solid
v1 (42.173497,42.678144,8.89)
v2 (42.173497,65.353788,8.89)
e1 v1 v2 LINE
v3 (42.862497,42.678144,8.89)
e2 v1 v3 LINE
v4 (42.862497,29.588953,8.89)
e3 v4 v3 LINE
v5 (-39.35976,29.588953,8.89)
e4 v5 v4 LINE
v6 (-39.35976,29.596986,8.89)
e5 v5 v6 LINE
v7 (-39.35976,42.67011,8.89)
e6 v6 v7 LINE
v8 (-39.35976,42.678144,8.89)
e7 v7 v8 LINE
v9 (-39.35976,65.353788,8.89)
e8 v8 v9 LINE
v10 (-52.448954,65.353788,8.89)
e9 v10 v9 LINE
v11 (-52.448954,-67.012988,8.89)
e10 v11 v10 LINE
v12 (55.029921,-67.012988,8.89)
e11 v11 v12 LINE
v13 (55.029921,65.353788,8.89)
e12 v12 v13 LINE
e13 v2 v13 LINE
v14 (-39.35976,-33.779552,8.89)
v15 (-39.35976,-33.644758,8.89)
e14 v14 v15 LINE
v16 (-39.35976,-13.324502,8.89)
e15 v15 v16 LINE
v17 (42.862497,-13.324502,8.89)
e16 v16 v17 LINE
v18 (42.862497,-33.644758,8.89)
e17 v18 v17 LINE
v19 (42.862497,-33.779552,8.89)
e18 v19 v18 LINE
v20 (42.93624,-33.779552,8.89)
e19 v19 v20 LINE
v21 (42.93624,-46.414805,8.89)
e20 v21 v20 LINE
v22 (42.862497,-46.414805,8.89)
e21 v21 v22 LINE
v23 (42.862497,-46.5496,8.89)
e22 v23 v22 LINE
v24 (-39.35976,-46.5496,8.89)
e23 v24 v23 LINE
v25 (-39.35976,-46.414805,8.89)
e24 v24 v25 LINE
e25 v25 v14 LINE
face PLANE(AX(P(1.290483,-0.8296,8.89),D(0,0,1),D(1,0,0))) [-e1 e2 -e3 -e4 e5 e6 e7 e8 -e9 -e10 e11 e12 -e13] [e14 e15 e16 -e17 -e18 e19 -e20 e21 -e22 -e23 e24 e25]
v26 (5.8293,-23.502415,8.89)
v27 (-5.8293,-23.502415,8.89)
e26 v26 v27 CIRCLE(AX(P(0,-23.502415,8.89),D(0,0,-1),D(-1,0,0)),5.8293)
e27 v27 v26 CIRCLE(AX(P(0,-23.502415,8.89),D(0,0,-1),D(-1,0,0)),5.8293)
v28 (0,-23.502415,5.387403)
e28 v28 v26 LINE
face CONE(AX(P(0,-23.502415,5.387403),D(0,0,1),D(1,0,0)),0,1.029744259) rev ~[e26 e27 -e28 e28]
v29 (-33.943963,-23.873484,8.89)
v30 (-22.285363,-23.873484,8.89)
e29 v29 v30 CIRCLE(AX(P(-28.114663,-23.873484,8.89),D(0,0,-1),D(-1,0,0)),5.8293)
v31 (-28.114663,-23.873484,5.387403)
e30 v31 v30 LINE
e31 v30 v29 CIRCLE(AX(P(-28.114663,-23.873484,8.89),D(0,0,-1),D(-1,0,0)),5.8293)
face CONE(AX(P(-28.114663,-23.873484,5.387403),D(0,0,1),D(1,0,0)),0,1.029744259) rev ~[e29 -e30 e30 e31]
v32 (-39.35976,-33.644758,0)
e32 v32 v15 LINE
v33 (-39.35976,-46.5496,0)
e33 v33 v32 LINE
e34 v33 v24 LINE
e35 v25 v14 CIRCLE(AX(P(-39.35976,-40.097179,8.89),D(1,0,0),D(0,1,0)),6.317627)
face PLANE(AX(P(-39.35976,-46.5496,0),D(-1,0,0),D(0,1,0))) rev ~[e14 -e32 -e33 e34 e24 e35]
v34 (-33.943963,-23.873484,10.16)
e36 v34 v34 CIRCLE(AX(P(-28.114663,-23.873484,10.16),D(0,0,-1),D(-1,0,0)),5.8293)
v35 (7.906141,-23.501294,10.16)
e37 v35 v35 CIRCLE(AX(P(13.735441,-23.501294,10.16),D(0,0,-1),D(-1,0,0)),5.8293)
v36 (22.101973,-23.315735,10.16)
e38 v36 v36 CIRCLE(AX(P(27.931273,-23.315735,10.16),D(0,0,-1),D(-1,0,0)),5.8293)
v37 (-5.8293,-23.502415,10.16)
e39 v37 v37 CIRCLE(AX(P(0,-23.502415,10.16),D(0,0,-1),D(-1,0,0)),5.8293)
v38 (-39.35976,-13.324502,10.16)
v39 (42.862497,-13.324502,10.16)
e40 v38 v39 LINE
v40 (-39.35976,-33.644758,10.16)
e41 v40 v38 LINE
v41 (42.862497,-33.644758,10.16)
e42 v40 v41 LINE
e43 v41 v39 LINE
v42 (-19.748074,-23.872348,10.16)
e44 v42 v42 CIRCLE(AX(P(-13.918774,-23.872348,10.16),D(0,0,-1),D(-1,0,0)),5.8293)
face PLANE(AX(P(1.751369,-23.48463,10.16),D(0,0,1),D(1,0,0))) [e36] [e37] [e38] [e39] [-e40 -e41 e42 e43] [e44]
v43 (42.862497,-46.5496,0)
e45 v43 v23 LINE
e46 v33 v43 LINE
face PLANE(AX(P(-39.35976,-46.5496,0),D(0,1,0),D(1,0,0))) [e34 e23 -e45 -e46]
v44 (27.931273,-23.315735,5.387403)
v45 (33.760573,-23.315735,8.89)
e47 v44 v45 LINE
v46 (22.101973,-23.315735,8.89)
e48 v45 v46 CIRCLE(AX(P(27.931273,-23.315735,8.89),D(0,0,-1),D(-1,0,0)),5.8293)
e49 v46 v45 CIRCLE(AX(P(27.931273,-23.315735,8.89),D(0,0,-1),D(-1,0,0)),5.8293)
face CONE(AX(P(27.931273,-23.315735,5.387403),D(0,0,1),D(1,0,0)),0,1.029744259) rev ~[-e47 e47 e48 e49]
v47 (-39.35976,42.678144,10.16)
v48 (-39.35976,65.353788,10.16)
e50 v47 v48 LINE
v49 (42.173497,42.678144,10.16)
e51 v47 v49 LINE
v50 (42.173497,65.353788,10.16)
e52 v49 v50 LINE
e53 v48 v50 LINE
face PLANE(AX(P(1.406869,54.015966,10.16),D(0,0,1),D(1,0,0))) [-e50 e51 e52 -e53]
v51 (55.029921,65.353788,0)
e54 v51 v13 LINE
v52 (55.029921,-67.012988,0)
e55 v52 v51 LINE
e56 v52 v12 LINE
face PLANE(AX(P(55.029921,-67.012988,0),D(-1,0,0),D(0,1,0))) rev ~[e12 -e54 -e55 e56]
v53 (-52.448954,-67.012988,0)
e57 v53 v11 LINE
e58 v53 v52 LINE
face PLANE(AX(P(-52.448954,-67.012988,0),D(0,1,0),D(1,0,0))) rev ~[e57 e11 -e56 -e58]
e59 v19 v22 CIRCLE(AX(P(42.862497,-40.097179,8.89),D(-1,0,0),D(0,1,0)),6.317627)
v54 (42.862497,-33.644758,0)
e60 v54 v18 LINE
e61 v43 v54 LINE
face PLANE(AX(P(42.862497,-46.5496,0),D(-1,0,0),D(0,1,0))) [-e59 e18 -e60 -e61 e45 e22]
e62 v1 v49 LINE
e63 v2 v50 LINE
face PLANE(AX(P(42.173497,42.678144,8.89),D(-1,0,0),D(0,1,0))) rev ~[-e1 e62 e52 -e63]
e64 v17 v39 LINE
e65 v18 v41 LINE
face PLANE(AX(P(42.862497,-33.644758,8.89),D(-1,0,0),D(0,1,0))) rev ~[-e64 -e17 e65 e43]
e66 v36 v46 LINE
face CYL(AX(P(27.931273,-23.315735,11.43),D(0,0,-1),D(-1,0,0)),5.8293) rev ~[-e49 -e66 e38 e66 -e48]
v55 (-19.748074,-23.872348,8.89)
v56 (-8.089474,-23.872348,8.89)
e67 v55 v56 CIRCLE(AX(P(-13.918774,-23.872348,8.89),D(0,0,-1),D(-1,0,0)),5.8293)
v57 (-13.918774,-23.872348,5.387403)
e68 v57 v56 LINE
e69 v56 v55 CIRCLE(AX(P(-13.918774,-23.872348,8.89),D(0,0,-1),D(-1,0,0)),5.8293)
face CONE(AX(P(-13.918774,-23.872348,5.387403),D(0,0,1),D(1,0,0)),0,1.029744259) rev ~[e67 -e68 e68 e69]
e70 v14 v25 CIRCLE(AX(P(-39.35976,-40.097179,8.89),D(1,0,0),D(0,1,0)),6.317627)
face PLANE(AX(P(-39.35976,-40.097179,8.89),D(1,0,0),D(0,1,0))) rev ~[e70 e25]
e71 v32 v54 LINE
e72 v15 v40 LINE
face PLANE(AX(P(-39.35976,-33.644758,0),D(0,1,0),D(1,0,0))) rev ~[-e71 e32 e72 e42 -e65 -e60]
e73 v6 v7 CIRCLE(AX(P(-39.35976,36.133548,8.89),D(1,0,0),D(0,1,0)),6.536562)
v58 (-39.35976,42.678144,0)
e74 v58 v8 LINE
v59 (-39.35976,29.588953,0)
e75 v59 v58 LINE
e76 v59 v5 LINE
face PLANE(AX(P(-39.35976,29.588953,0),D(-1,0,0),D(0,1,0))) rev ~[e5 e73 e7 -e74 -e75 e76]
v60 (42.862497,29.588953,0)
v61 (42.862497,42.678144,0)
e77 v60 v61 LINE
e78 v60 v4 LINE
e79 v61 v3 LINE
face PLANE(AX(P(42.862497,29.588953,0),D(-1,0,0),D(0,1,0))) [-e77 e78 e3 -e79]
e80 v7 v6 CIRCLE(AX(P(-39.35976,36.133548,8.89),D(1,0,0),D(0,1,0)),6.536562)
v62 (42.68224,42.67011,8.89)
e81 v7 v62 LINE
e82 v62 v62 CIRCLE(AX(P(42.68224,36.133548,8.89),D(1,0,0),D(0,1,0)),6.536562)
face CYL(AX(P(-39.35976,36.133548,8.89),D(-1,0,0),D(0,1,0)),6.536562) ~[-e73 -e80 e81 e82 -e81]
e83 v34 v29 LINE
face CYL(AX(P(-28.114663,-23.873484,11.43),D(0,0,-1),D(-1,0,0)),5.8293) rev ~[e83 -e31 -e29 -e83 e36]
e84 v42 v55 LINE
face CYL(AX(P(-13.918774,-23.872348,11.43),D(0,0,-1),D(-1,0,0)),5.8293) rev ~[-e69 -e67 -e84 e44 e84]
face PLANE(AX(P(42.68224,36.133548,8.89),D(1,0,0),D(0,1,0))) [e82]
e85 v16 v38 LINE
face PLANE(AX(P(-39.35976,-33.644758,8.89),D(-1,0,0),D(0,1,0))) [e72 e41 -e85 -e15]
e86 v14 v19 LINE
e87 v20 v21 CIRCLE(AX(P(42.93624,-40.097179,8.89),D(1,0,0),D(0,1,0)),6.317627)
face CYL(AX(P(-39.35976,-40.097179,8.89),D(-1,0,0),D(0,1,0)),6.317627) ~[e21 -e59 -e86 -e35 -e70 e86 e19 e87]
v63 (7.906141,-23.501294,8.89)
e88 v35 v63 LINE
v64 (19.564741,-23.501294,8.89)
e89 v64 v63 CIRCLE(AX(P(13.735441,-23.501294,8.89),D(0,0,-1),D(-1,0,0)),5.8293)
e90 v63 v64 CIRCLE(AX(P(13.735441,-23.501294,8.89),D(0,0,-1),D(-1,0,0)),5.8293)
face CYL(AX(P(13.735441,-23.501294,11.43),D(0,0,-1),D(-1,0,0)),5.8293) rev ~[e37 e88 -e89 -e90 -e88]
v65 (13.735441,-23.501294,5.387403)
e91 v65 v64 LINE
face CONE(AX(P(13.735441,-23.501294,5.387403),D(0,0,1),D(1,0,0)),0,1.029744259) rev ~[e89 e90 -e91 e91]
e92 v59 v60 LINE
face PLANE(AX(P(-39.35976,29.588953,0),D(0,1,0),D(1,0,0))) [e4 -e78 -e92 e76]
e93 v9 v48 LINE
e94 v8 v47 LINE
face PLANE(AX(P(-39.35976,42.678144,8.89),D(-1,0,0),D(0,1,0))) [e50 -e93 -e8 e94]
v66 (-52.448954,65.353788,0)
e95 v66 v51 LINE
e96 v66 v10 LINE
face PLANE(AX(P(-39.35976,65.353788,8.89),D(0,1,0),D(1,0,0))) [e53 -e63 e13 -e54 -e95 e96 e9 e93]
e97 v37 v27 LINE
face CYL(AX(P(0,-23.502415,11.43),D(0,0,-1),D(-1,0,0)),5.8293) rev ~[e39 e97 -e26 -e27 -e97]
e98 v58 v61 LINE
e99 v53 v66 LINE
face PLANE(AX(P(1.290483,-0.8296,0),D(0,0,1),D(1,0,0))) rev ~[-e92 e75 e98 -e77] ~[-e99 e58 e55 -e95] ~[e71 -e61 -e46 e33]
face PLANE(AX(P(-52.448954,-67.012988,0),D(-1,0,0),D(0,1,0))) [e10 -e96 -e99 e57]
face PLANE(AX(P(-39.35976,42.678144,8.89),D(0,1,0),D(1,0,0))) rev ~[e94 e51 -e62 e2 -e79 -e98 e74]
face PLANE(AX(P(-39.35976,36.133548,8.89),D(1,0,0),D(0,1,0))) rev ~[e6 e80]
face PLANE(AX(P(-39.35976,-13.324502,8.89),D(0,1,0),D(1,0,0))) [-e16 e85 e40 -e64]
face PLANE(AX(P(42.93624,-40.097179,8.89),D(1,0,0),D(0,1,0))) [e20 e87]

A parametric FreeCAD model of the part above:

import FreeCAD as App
import Part
import Sketcher
Q = App.Units.Quantity

doc = App.newDocument("Part")
params = doc.addObject("Spreadsheet::Sheet", "Params")
for row, (alias, value) in enumerate([
    ("pad1_length", "0.35 in"),
    ("pad2_length", "3.23 in"),
    ("pad3_length", "3.24 in"),
    ("pad4_length", "0.05 in"),
    ("sketch5_diameter", "0.459 in"),
    ("hole_diameter", "0.459 in"),
    ("hole_depth", "0.05 in"),
], start=1):
    params.set(f"A{row}", alias)
    params.set(f"B{row}", "=" + value)
    params.setAlias(f"B{row}", alias)

body = doc.addObject("PartDesign::Body", "Body")

sketch1 = body.newObject("Sketcher::SketchObject", "Sketch")
sketch1.AttachmentSupport = (doc.getObject("XY_Plane"), [""])
sketch1.MapMode = "FlatFace"
sketch1.addGeometry([
    Part.LineSegment(App.Vector(-52.448954, 65.353788, 0), App.Vector(-52.448954, -67.012988, 0)),
    Part.LineSegment(App.Vector(-52.448954, -67.012988, 0), App.Vector(55.029921, -67.012988, 0)),
    Part.LineSegment(App.Vector(55.029921, -67.012988, 0), App.Vector(55.029921, 65.353788, 0)),
    Part.LineSegment(App.Vector(55.029921, 65.353788, 0), App.Vector(-52.448954, 65.353788, 0)),
    Part.LineSegment(App.Vector(42.862497, -46.5496, 0), App.Vector(-39.35976, -46.5496, 0)),
    Part.LineSegment(App.Vector(-39.35976, -46.5496, 0), App.Vector(-39.35976, -33.644758, 0)),
    Part.LineSegment(App.Vector(-39.35976, -33.644758, 0), App.Vector(42.862497, -33.644758, 0)),
    Part.LineSegment(App.Vector(42.862497, -33.644758, 0), App.Vector(42.862497, -46.5496, 0)),
    Part.LineSegment(App.Vector(42.862497, 29.588953, 0), App.Vector(-39.35976, 29.588953, 0)),
    Part.LineSegment(App.Vector(-39.35976, 29.588953, 0), App.Vector(-39.35976, 42.678144, 0)),
    Part.LineSegment(App.Vector(-39.35976, 42.678144, 0), App.Vector(42.862497, 42.678144, 0)),
    Part.LineSegment(App.Vector(42.862497, 42.678144, 0), App.Vector(42.862497, 29.588953, 0)),
], False)
sketch1.addConstraint([
    Sketcher.Constraint("Coincident", 0, 2, 1, 1),
    Sketcher.Constraint("Coincident", 1, 2, 2, 1),
    Sketcher.Constraint("Coincident", 2, 2, 3, 1),
    Sketcher.Constraint("Coincident", 3, 2, 0, 1),
    Sketcher.Constraint("Coincident", 4, 2, 5, 1),
    Sketcher.Constraint("Coincident", 5, 2, 6, 1),
    Sketcher.Constraint("Coincident", 6, 2, 7, 1),
    Sketcher.Constraint("Coincident", 7, 2, 4, 1),
    Sketcher.Constraint("Coincident", 8, 2, 9, 1),
    Sketcher.Constraint("Coincident", 9, 2, 10, 1),
    Sketcher.Constraint("Coincident", 10, 2, 11, 1),
    Sketcher.Constraint("Coincident", 11, 2, 8, 1),
    Sketcher.Constraint("Vertical", 0),
    Sketcher.Constraint("Horizontal", 1),
    Sketcher.Constraint("Vertical", 2),
    Sketcher.Constraint("Horizontal", 3),
    Sketcher.Constraint("Horizontal", 4),
    Sketcher.Constraint("Vertical", 5),
    Sketcher.Constraint("Horizontal", 6),
    Sketcher.Constraint("Vertical", 7),
    Sketcher.Constraint("Horizontal", 8),
    Sketcher.Constraint("Vertical", 9),
    Sketcher.Constraint("Horizontal", 10),
    Sketcher.Constraint("Vertical", 11),
    Sketcher.Constraint("Vertical", 5, 2, 8, 2),
    Sketcher.Constraint("Vertical", 7, 2, 10, 2),
    Sketcher.Constraint("DistanceX", -1, 1, 6, 2, Q("1.6874999 in")),
    Sketcher.Constraint("DistanceY", 5, 1, 5, 2, 12.904841),
    Sketcher.Constraint("DistanceY", 9, 1, 9, 2, 13.089191),
    Sketcher.Constraint("DistanceY", 4, 2, -1, 1, 46.5496),
    Sketcher.Constraint("DistanceY", 5, 2, 9, 2, 76.322902),
    Sketcher.Constraint("DistanceX", 1, 1, 1, 2, 107.478876),
    Sketcher.Constraint("DistanceX", 4, 2, 4, 1, 82.222257),
    Sketcher.Constraint("DistanceY", 0, 2, 0, 1, 132.366776),
    Sketcher.Constraint("DistanceY", 0, 2, -1, 1, 67.012988),
    Sketcher.Constraint("DistanceX", -1, 1, 1, 2, 55.029921),
])
pad1 = body.newObject("PartDesign::Pad", "Pad")
pad1.Profile = sketch1
pad1.setExpression("Length", "Params.pad1_length")

sketch2 = body.newObject("Sketcher::SketchObject", "Sketch001")
sketch2.AttachmentSupport = (doc.getObject("YZ_Plane"), [""])
sketch2.MapMode = "FlatFace"
sketch2.AttachmentOffset = App.Placement(App.Vector(0, 0, -39.35976), App.Rotation())
sketch2.addGeometry(Part.Circle(App.Vector(36.133548, 8.89, 0), App.Vector(0, 0, 1), 6.536562), False)
sketch2.addConstraint([
    Sketcher.Constraint("DistanceY", -1, 1, 0, 3, Q("0.35 in")),
    Sketcher.Constraint("Diameter", 0, 13.073124),
    Sketcher.Constraint("DistanceX", -1, 1, 0, 3, 36.133548),
])
pad2 = body.newObject("PartDesign::Pad", "Pad001")
pad2.Profile = sketch2
pad2.setExpression("Length", "Params.pad2_length")

sketch3 = body.newObject("Sketcher::SketchObject", "Sketch002")
sketch3.AttachmentSupport = (doc.getObject("YZ_Plane"), [""])
sketch3.MapMode = "FlatFace"
sketch3.AttachmentOffset = App.Placement(App.Vector(0, 0, -39.35976), App.Rotation())
sketch3.addGeometry(Part.Circle(App.Vector(-40.097179, 8.89, 0), App.Vector(0, 0, 1), 6.317627), False)
sketch3.addConstraint([
    Sketcher.Constraint("DistanceY", -1, 1, 0, 3, Q("0.35 in")),
    Sketcher.Constraint("Diameter", 0, 12.635253),
    Sketcher.Constraint("DistanceX", 0, 3, -1, 1, 40.097179),
])
pad3 = body.newObject("PartDesign::Pad", "Pad002")
pad3.Profile = sketch3
pad3.setExpression("Length", "Params.pad3_length")

sketch4 = body.newObject("Sketcher::SketchObject", "Sketch003")
sketch4.AttachmentSupport = (doc.getObject("XY_Plane"), [""])
sketch4.MapMode = "FlatFace"
sketch4.AttachmentOffset = App.Placement(App.Vector(0, 0, 0.35 * 25.4), App.Rotation())
sketch4.addGeometry([
    Part.LineSegment(App.Vector(-39.35976, 65.353788, 0), App.Vector(-39.35976, 42.678144, 0)),
    Part.LineSegment(App.Vector(-39.35976, 42.678144, 0), App.Vector(42.173497, 42.678144, 0)),
    Part.LineSegment(App.Vector(42.173497, 42.678144, 0), App.Vector(42.173497, 65.353788, 0)),
    Part.LineSegment(App.Vector(42.173497, 65.353788, 0), App.Vector(-39.35976, 65.353788, 0)),
    Part.LineSegment(App.Vector(-39.35976, -13.324502, 0), App.Vector(-39.35976, -33.644758, 0)),
    Part.LineSegment(App.Vector(-39.35976, -33.644758, 0), App.Vector(42.862497, -33.644758, 0)),
    Part.LineSegment(App.Vector(42.862497, -33.644758, 0), App.Vector(42.862497, -13.324502, 0)),
    Part.LineSegment(App.Vector(42.862497, -13.324502, 0), App.Vector(-39.35976, -13.324502, 0)),
], False)
sketch4.addConstraint([
    Sketcher.Constraint("Coincident", 0, 2, 1, 1),
    Sketcher.Constraint("Coincident", 1, 2, 2, 1),
    Sketcher.Constraint("Coincident", 2, 2, 3, 1),
    Sketcher.Constraint("Coincident", 3, 2, 0, 1),
    Sketcher.Constraint("Coincident", 4, 2, 5, 1),
    Sketcher.Constraint("Coincident", 5, 2, 6, 1),
    Sketcher.Constraint("Coincident", 6, 2, 7, 1),
    Sketcher.Constraint("Coincident", 7, 2, 4, 1),
    Sketcher.Constraint("Vertical", 0),
    Sketcher.Constraint("Horizontal", 1),
    Sketcher.Constraint("Vertical", 2),
    Sketcher.Constraint("Horizontal", 3),
    Sketcher.Constraint("Vertical", 4),
    Sketcher.Constraint("Horizontal", 5),
    Sketcher.Constraint("Vertical", 6),
    Sketcher.Constraint("Horizontal", 7),
    Sketcher.Constraint("Vertical", 3, 2, 4, 2),
    Sketcher.Constraint("DistanceX", -1, 1, 5, 2, Q("1.6874999 in")),
    Sketcher.Constraint("DistanceY", 6, 2, -1, 1, 13.324502),
    Sketcher.Constraint("DistanceY", 4, 2, 0, 2, 76.322902),
    Sketcher.Constraint("DistanceX", 1, 2, 5, 2, 0.689),
    Sketcher.Constraint("DistanceX", 1, 1, 1, 2, 81.533257),
    Sketcher.Constraint("DistanceY", 0, 2, 0, 1, 22.675645),
    Sketcher.Constraint("DistanceY", 4, 2, 4, 1, 20.320256),
])
pad4 = body.newObject("PartDesign::Pad", "Pad003")
pad4.Profile = sketch4
pad4.setExpression("Length", "Params.pad4_length")

sketch5 = body.newObject("Sketcher::SketchObject", "Sketch004")
sketch5.AttachmentSupport = (doc.getObject("XY_Plane"), [""])
sketch5.MapMode = "FlatFace"
sketch5.AttachmentOffset = App.Placement(App.Vector(0, 0, 0.4 * 25.4), App.Rotation())
sketch5.addGeometry([
    Part.Circle(App.Vector(-13.918774, -23.872348, 0), App.Vector(0, 0, 1), 5.8293),
    Part.Circle(App.Vector(0, -23.502415, 0), App.Vector(0, 0, 1), 5.8293),
    Part.Circle(App.Vector(13.735441, -23.501294, 0), App.Vector(0, 0, 1), 5.8293),
    Part.Circle(App.Vector(27.931273, -23.315735, 0), App.Vector(0, 0, 1), 5.8293),
    Part.Circle(App.Vector(-28.114663, -23.873484, 0), App.Vector(0, 0, 1), 5.8293),
], False)
sketch5.addConstraint([
    Sketcher.Constraint("Equal", 0, 1),
    Sketcher.Constraint("Equal", 1, 2),
    Sketcher.Constraint("Equal", 2, 3),
    Sketcher.Constraint("Equal", 3, 4),
    Sketcher.Constraint("PointOnObject", 1, 3, -2),
    Sketcher.Constraint("Diameter", 0, Q("0.459 in")),
    Sketcher.Constraint("DistanceX", -1, 1, 2, 3, 13.735441),
    Sketcher.Constraint("DistanceY", 1, 3, 2, 3, 0.001121),
    Sketcher.Constraint("DistanceX", 2, 3, 3, 3, 14.195831),
    Sketcher.Constraint("DistanceY", 2, 3, 3, 3, 0.185559),
    Sketcher.Constraint("DistanceX", 4, 3, 0, 3, 14.195889),
    Sketcher.Constraint("DistanceY", 4, 3, 1, 3, 0.371069),
    Sketcher.Constraint("DistanceX", 0, 3, -1, 1, 13.918774),
    Sketcher.Constraint("DistanceY", 0, 3, -1, 1, 23.872348),
    Sketcher.Constraint("DistanceY", 1, 3, -1, 1, 23.502415),
])
sketch5.setExpression("Constraints[5]", "Params.sketch5_diameter")
doc.recompute()
hole = body.newObject("PartDesign::Hole", "Hole")
hole.Profile = sketch5
hole.ThreadType = "None"
hole.setExpression("Diameter", "Params.hole_diameter")
hole.DepthType = "Dimension"
hole.setExpression("Depth", "Params.hole_depth")
hole.DrillPoint = "Angled"
hole.DrillPointAngle = 118

doc.recompute()
